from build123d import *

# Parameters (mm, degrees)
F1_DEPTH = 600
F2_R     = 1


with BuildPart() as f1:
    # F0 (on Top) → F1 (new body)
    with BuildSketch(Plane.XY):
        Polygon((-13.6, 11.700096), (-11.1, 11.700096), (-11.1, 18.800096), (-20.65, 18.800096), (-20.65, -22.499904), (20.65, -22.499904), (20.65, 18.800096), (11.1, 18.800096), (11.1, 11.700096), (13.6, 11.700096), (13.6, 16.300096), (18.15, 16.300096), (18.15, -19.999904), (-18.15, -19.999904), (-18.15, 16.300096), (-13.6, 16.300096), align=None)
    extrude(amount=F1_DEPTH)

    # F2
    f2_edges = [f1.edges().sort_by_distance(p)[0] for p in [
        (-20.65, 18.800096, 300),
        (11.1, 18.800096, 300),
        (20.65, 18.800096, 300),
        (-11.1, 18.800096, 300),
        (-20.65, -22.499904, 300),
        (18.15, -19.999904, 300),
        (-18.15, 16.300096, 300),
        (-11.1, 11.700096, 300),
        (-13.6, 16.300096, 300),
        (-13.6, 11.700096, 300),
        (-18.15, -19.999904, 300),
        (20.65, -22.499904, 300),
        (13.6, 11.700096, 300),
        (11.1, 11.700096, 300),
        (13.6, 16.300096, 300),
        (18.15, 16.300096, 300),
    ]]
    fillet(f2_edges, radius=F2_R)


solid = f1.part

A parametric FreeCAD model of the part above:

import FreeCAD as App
import Part
import Sketcher


def edges_at(feature, points):
    """Names of the edges that pass closest to the given points."""
    edges = feature.Shape.Edges
    near = lambda p: min(range(len(edges)), key=lambda i: edges[i].distToShape(Part.Vertex(*p))[0])
    return sorted({f"Edge{near(p) + 1}" for p in points})

doc = App.newDocument("Part")
body = doc.addObject("PartDesign::Body", "Body")

# Sketch on XY plane
sketch1 = body.newObject("Sketcher::SketchObject", "Sketch")
sketch1.AttachmentSupport = (doc.getObject("XY_Plane"), [""])
sketch1.MapMode = "FlatFace"
sketch1.addGeometry([
    Part.LineSegment(App.Vector(-13.6, 11.7, 0), App.Vector(-11.1, 11.7, 0)),  # 0
    Part.LineSegment(App.Vector(-11.1, 11.7, 0), App.Vector(-11.1, 18.8, 0)),  # 1
    Part.LineSegment(App.Vector(-11.1, 18.8, 0), App.Vector(-20.6, 18.8, 0)),  # 2
    Part.LineSegment(App.Vector(-20.6, 18.8, 0), App.Vector(-20.6, -22.5, 0)),  # 3
    Part.LineSegment(App.Vector(-20.6, -22.5, 0), App.Vector(20.6, -22.5, 0)),  # 4
    Part.LineSegment(App.Vector(20.6, -22.5, 0), App.Vector(20.6, 18.8, 0)),  # 5
    Part.LineSegment(App.Vector(20.6, 18.8, 0), App.Vector(11.1, 18.8, 0)),  # 6
    Part.LineSegment(App.Vector(11.1, 18.8, 0), App.Vector(11.1, 11.7, 0)),  # 7
    Part.LineSegment(App.Vector(11.1, 11.7, 0), App.Vector(13.6, 11.7, 0)),  # 8
    Part.LineSegment(App.Vector(13.6, 11.7, 0), App.Vector(13.6, 16.3, 0)),  # 9
    Part.LineSegment(App.Vector(13.6, 16.3, 0), App.Vector(18.1, 16.3, 0)),  # 10
    Part.LineSegment(App.Vector(18.1, 16.3, 0), App.Vector(18.1, -20, 0)),  # 11
    Part.LineSegment(App.Vector(18.1, -20, 0), App.Vector(-18.1, -20, 0)),  # 12
    Part.LineSegment(App.Vector(-18.1, -20, 0), App.Vector(-18.1, 16.3, 0)),  # 13
    Part.LineSegment(App.Vector(-18.1, 16.3, 0), App.Vector(-13.6, 16.3, 0)),  # 14
    Part.LineSegment(App.Vector(-13.6, 16.3, 0), App.Vector(-13.6, 11.7, 0)),  # 15
], False)
sketch1.addConstraint([
    Sketcher.Constraint("Coincident", 0, 2, 1, 1),
    Sketcher.Constraint("Coincident", 1, 2, 2, 1),
    Sketcher.Constraint("Coincident", 2, 2, 3, 1),
    Sketcher.Constraint("Coincident", 3, 2, 4, 1),
    Sketcher.Constraint("Coincident", 4, 2, 5, 1),
    Sketcher.Constraint("Coincident", 5, 2, 6, 1),
    Sketcher.Constraint("Coincident", 6, 2, 7, 1),
    Sketcher.Constraint("Coincident", 7, 2, 8, 1),
    Sketcher.Constraint("Coincident", 8, 2, 9, 1),
    Sketcher.Constraint("Coincident", 9, 2, 10, 1),
    Sketcher.Constraint("Coincident", 10, 2, 11, 1),
    Sketcher.Constraint("Coincident", 11, 2, 12, 1),
    Sketcher.Constraint("Coincident", 12, 2, 13, 1),
    Sketcher.Constraint("Coincident", 13, 2, 14, 1),
    Sketcher.Constraint("Coincident", 14, 2, 15, 1),
    Sketcher.Constraint("Coincident", 15, 2, 0, 1),
    Sketcher.Constraint("Horizontal", 0),
    Sketcher.Constraint("Vertical", 1),
    Sketcher.Constraint("Horizontal", 2),
    Sketcher.Constraint("Vertical", 3),
    Sketcher.Constraint("Horizontal", 4),
    Sketcher.Constraint("Vertical", 5),
    Sketcher.Constraint("Horizontal", 6),
    Sketcher.Constraint("Vertical", 7),
    Sketcher.Constraint("Horizontal", 8),
    Sketcher.Constraint("Vertical", 9),
    Sketcher.Constraint("Horizontal", 10),
    Sketcher.Constraint("Vertical", 11),
    Sketcher.Constraint("Horizontal", 12),
    Sketcher.Constraint("Vertical", 13),
    Sketcher.Constraint("Horizontal", 14),
    Sketcher.Constraint("Vertical", 15),
    Sketcher.Constraint("Symmetric", 2, 2, 5, 2, -2),
    Sketcher.Constraint("Symmetric", 0, 2, 7, 2, -2),
    Sketcher.Constraint("Symmetric", 10, 2, 13, 2, -2),
    Sketcher.Constraint("Equal", 0, 8),
    Sketcher.Constraint("Equal", 4, 3),
    Sketcher.Constraint("Equal", 12, 11),
    Sketcher.Constraint("DistanceX", 0, 1, 0, 2, 2.5),
    Sketcher.Constraint("DistanceX", 4, 1, 4, 2, 41.3),
    Sketcher.Constraint("DistanceX", 12, 2, 12, 1, 36.3),
    Sketcher.Constraint("DistanceY", 1, 1, 1, 2, 7.1),
    Sketcher.Constraint("DistanceY", 9, 1, 9, 2, 4.6),
    Sketcher.Constraint("DistanceX", 2, 2, 2, 1, 9.55),
    Sketcher.Constraint("DistanceY", -1, 1, 0, 2, 11.700096),
])
pad1 = body.newObject("PartDesign::Pad", "Pad")
pad1.Profile = sketch1
pad1.Length = 600
doc.recompute()

fillet = body.newObject("PartDesign::Fillet", "Fillet")
fillet.Base = (pad1, edges_at(pad1, [
    (-20.65, 18.8, 300),
    (11.1, 18.8, 300),
    (20.65, 18.8, 300),
    (-11.1, 18.8, 300),
    (-20.65, -22.5, 300),
    (18.15, -20, 300),
    (-18.15, 16.3, 300),
    (-11.1, 11.7, 300),
    (-13.6, 16.3, 300),
    (-13.6, 11.7, 300),
    (-18.15, -20, 300),
    (20.65, -22.5, 300),
    (13.6, 11.7, 300),
    (11.1, 11.7, 300),
    (13.6, 16.3, 300),
    (18.15, 16.3, 300),
]))
fillet.Radius = 1

doc.recompute()
